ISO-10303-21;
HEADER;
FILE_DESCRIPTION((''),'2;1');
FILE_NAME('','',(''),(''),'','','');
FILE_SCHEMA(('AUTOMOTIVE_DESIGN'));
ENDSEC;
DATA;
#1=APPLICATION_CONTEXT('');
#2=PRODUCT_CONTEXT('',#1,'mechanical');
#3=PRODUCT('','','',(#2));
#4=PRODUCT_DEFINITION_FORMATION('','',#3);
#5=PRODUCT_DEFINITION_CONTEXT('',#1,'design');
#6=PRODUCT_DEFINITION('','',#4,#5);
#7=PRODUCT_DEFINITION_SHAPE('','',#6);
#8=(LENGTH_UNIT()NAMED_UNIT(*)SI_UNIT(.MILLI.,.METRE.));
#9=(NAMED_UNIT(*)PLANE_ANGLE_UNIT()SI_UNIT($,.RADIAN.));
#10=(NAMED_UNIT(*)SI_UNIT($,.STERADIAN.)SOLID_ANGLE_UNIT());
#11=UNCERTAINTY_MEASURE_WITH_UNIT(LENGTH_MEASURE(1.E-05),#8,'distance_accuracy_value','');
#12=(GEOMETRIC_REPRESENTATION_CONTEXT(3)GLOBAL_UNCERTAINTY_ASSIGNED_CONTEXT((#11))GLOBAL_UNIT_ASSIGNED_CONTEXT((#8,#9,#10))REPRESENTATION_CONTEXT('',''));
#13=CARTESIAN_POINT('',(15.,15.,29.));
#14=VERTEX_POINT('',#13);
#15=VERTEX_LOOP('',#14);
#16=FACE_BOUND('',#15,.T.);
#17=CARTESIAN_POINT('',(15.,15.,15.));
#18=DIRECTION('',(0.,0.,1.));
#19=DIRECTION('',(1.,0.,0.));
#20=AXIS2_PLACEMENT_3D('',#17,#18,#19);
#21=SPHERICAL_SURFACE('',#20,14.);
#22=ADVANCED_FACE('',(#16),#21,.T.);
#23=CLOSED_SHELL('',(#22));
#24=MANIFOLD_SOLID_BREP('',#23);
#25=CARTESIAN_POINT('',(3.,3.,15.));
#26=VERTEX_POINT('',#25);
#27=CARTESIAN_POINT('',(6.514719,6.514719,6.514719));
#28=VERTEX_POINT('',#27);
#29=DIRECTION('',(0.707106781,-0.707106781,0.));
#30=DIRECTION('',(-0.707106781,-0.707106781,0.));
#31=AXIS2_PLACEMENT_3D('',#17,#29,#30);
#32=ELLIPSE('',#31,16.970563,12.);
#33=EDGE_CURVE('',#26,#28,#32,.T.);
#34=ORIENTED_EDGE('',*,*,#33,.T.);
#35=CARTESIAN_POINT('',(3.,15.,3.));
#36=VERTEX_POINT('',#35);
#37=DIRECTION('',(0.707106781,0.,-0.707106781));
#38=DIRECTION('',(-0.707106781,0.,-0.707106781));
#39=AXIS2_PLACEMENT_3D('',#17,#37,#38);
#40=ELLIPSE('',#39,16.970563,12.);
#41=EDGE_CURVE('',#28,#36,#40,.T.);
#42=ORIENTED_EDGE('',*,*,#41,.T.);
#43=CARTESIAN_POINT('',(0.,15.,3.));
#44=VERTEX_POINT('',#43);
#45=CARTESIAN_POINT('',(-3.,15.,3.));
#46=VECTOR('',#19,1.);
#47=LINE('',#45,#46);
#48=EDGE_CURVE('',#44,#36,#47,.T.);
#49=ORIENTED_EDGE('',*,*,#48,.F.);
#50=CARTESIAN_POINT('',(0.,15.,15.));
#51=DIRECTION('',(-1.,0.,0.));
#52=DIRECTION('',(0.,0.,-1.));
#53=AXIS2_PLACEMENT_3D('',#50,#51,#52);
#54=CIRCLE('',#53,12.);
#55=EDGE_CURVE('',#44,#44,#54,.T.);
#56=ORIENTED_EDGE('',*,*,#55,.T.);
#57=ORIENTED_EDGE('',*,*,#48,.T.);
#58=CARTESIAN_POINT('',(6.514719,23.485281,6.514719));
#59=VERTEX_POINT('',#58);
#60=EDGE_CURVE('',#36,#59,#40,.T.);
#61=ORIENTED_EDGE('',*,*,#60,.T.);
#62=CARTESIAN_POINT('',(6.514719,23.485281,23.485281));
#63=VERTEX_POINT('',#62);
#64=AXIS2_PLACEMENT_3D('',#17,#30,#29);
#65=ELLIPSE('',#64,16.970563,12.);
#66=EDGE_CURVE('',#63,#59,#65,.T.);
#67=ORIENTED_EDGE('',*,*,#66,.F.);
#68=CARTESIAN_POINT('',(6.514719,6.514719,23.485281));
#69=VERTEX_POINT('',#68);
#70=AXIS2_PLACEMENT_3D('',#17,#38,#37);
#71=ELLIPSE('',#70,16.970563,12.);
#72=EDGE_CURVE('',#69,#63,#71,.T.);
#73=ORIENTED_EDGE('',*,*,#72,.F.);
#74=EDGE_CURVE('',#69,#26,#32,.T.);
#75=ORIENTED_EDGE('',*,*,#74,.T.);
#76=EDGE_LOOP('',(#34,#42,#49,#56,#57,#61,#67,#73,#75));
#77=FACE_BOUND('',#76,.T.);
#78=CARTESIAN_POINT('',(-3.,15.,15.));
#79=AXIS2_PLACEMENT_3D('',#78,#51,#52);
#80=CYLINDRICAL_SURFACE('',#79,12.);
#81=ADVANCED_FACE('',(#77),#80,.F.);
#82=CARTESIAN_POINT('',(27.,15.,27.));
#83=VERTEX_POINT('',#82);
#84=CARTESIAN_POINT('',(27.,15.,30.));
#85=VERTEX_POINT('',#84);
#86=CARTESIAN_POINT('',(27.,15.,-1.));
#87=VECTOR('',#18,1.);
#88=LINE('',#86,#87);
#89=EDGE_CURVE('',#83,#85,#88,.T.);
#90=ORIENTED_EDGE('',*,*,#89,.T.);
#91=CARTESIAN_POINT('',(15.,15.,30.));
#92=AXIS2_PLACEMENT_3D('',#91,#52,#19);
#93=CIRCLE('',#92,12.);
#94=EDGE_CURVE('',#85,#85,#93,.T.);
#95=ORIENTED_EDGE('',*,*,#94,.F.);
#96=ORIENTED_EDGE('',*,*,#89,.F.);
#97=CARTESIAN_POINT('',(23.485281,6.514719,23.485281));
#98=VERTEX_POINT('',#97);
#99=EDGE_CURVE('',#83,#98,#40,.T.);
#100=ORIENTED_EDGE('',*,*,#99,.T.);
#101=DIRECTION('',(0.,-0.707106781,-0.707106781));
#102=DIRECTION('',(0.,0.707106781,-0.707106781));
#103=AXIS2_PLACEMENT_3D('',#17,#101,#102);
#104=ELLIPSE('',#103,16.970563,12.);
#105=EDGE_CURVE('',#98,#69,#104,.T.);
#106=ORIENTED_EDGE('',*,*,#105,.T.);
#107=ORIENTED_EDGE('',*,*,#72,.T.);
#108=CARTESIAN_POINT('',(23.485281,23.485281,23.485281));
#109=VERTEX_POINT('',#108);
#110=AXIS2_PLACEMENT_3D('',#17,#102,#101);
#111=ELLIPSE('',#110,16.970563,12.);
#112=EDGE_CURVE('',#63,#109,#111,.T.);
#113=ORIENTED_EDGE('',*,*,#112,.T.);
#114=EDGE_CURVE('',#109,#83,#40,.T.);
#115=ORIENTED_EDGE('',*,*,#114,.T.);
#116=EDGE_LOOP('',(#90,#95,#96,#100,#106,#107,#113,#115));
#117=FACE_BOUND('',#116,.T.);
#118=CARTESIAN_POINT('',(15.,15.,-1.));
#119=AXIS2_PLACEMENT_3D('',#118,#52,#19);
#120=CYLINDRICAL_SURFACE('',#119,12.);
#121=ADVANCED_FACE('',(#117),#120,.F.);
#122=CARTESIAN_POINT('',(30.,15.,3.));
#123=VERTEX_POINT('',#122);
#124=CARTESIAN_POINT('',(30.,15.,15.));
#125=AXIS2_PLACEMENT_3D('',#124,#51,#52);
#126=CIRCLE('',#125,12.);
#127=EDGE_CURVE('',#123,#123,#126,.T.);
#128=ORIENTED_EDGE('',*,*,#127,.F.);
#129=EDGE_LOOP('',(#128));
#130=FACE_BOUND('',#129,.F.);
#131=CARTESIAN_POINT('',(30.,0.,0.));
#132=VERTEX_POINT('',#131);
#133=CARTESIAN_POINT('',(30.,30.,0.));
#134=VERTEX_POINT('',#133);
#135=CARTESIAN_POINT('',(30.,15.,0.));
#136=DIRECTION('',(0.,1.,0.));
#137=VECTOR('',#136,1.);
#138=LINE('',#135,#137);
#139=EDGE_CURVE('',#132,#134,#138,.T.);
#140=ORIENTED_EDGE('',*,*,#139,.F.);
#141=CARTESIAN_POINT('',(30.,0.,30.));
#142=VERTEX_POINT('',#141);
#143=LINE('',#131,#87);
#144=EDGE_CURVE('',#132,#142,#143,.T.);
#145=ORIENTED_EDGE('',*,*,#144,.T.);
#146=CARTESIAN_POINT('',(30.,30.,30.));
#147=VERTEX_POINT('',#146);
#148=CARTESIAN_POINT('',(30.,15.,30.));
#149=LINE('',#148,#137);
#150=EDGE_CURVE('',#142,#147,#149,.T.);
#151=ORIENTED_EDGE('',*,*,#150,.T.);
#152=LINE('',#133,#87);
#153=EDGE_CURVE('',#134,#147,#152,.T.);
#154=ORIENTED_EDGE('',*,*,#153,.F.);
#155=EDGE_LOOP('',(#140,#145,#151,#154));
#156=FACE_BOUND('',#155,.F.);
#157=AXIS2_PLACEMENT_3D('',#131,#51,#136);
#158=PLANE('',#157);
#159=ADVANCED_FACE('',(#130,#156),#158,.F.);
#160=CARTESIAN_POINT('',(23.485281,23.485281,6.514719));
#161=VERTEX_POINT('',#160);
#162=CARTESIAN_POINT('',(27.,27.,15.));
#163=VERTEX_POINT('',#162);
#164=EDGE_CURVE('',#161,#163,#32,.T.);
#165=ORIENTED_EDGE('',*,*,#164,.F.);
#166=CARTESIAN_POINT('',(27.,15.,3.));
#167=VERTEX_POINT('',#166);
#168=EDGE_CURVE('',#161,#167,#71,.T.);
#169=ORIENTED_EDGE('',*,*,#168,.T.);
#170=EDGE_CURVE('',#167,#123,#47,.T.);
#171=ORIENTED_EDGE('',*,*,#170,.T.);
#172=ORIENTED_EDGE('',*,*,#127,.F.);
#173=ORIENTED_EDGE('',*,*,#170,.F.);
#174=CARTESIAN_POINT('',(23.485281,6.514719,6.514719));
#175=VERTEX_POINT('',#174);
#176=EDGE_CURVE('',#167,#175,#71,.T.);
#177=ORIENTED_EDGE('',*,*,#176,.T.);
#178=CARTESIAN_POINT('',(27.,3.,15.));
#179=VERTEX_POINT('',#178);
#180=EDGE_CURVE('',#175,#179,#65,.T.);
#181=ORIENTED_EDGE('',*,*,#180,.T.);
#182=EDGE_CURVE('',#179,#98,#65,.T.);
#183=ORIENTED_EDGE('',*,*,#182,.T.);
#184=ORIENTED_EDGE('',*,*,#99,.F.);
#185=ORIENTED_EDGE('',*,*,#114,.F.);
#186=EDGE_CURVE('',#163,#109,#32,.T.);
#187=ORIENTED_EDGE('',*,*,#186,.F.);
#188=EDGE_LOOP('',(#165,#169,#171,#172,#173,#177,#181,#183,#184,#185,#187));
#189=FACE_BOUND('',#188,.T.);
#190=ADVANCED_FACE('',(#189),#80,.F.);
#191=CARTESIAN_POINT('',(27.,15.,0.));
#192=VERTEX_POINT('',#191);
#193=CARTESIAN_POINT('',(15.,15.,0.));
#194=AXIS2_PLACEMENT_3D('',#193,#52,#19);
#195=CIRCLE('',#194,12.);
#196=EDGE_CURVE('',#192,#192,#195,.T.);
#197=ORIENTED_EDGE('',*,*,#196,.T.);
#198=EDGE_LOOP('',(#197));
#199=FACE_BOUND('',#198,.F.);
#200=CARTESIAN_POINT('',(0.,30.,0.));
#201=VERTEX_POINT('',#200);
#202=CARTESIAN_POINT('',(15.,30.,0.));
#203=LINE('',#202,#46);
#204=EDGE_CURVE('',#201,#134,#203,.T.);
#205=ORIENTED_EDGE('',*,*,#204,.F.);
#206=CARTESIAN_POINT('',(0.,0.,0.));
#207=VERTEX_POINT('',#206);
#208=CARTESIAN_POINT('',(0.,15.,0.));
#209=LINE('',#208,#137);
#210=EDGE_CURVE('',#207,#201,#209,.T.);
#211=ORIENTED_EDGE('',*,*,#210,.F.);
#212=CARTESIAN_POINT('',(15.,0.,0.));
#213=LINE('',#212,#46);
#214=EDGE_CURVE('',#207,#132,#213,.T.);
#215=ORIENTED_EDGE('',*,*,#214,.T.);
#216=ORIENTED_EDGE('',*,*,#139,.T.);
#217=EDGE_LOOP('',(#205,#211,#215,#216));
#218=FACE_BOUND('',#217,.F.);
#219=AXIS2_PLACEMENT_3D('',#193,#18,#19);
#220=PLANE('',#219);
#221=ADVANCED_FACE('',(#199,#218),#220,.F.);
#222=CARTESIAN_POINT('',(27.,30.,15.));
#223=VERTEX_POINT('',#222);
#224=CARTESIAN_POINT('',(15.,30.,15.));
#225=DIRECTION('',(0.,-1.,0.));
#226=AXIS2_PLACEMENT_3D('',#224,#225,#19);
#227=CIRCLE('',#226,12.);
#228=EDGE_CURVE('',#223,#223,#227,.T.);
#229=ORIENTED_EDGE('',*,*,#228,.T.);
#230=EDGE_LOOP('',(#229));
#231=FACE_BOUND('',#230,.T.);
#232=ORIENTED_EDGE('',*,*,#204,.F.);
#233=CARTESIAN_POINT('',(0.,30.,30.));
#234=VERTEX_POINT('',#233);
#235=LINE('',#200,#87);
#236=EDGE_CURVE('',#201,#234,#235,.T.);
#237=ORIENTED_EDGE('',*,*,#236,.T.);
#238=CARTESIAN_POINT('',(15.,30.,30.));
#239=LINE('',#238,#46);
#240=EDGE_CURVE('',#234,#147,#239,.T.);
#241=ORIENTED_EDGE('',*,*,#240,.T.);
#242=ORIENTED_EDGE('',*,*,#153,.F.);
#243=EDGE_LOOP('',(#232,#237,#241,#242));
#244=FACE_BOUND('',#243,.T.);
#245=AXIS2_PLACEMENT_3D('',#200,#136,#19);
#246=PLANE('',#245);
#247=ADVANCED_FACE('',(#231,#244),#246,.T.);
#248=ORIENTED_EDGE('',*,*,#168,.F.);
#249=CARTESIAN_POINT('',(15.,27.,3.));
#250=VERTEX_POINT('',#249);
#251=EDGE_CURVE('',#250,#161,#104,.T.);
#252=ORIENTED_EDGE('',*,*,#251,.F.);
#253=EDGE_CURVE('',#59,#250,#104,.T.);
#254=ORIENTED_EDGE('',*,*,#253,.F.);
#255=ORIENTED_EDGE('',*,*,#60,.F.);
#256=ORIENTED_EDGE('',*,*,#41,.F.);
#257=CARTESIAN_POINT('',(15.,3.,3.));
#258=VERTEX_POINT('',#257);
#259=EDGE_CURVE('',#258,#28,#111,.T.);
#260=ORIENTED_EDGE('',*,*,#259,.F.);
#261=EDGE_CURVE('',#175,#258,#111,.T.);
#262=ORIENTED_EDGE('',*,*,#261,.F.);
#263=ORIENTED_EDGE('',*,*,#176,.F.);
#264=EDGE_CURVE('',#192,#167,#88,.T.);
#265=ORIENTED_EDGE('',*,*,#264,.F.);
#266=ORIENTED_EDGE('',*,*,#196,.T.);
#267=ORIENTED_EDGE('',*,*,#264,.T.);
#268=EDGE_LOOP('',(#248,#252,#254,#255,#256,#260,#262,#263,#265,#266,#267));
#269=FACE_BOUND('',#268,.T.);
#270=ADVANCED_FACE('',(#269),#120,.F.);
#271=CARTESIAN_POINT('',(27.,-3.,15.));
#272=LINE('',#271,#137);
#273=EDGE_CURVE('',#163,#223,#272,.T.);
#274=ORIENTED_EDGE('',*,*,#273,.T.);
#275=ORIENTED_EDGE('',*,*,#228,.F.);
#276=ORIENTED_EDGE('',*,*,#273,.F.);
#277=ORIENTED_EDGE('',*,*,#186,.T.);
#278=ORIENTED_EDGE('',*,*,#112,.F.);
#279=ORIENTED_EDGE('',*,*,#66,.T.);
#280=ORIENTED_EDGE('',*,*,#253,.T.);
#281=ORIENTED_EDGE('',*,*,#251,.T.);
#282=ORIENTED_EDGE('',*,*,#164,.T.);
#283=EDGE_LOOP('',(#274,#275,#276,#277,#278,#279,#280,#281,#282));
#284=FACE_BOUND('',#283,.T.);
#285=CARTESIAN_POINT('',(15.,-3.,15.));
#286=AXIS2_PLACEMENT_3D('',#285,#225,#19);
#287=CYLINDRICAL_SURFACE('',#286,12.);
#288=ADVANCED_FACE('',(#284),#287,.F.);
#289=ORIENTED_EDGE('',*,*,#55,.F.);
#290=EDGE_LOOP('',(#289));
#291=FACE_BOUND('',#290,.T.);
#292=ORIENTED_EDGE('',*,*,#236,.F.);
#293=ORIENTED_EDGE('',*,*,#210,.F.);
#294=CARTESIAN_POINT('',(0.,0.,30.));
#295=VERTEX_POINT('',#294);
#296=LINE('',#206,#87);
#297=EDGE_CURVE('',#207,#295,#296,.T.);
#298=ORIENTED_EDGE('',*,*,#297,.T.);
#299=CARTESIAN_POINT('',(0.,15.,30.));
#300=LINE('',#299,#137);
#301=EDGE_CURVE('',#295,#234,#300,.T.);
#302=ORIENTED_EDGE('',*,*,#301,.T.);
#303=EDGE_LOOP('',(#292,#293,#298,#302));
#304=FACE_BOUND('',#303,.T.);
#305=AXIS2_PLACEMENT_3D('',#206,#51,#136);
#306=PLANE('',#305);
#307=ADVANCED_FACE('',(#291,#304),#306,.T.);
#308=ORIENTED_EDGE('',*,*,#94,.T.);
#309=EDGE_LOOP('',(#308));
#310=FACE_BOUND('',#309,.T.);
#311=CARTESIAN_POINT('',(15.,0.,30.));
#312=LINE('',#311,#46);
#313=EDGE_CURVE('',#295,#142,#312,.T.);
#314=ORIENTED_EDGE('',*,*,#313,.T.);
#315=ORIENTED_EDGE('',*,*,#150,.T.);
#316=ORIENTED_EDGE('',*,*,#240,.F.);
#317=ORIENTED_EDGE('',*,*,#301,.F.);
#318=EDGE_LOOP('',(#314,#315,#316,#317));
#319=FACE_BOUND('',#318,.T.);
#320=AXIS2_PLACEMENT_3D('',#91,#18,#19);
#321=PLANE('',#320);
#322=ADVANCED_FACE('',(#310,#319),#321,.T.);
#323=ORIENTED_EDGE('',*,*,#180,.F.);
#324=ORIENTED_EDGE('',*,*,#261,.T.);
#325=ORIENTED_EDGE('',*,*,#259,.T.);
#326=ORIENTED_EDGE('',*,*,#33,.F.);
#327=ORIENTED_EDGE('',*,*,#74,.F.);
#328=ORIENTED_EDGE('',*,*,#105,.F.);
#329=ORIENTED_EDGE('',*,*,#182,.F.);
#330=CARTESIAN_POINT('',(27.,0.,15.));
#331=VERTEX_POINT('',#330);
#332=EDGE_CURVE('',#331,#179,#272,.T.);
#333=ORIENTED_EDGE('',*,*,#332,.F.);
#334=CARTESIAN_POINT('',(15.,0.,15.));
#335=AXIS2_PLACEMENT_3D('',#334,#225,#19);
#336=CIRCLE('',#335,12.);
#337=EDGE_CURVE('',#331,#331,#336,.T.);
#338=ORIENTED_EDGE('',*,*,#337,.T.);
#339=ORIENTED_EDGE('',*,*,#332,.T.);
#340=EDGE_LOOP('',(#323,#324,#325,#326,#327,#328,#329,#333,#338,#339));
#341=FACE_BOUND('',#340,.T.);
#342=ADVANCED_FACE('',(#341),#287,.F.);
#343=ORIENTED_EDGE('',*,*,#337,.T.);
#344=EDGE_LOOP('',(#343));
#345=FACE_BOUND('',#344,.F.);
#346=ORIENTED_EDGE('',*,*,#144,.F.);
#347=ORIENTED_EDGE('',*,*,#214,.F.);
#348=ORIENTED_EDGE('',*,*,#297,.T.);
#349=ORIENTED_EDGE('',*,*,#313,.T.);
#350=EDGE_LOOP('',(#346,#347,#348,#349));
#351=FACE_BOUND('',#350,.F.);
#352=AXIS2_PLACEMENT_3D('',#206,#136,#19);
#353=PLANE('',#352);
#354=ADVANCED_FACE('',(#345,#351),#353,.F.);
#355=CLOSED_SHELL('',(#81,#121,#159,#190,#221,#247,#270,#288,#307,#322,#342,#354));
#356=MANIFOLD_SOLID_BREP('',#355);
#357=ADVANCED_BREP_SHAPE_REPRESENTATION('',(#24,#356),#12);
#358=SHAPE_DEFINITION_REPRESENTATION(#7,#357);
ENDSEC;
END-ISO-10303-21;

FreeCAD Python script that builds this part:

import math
import FreeCAD as App
import Part
import Sketcher

V = App.Vector
Q = App.Units.Quantity

doc = App.newDocument("Part")
body = doc.addObject("PartDesign::Body", "Body")

# Sketch on XZ plane
sketch1 = body.newObject("Sketcher::SketchObject", "Sketch")
sketch1.AttachmentSupport = (doc.getObject("XZ_Plane"), [""])
sketch1.MapMode = "FlatFace"
sketch1.AttachmentOffset = App.Placement(V(0, 0, -15), App.Rotation())
sketch1.addGeometry([
    Part.ArcOfCircle(Part.Circle(V(15, 15, 0), V(0, 0, 1), 14), math.radians(-90), math.radians(90)),
    Part.LineSegment(V(15, 29, 0), V(15, 1, 0)),
], False)
sketch1.addGeometry(Part.LineSegment(V(15, 1, 0), V(15, 29, 0)), True)  # axis
sketch1.addConstraint([
    Sketcher.Constraint("Coincident", 0, 1, 1, 2),
    Sketcher.Constraint("Coincident", 1, 1, 0, 2),
    Sketcher.Constraint("Vertical", 1),
    Sketcher.Constraint("Vertical", 2),
    Sketcher.Constraint("Coincident", 2, 1, 0, 1),
    Sketcher.Constraint("Equal", 1, 2),
    Sketcher.Constraint("Radius", 0, Q("14 mm")),
    Sketcher.Constraint("DistanceX", -1, 1, 0, 3, Q("15 mm")),
    Sketcher.Constraint("DistanceY", -1, 1, 0, 3, Q("15 mm")),
    Sketcher.Constraint("DistanceX", -1, 1, 0, 1, Q("15 mm")),
])
revolution = body.newObject("PartDesign::Revolution", "Revolution")
revolution.Profile = sketch1
revolution.ReferenceAxis = (sketch1, ["Axis0"])
revolution.Angle = 360
body2 = doc.addObject("PartDesign::Body", "Body001")

# Sketch on YZ plane
sketch2 = body2.newObject("Sketcher::SketchObject", "Sketch001")
sketch2.AttachmentSupport = (doc.getObject("YZ_Plane001"), [""])
sketch2.MapMode = "FlatFace"
sketch2.AttachmentOffset = App.Placement(V(0, 0, -3), App.Rotation())
sketch2.addGeometry(Part.Circle(V(15, 15, 0), V(0, 0, 1), 12), False)
sketch2.addConstraint([
    Sketcher.Constraint("Diameter", 0, Q("24 mm")),
    Sketcher.Constraint("DistanceX", -1, 1, 0, 3, Q("15 mm")),
    Sketcher.Constraint("DistanceY", -1, 1, 0, 3, Q("15 mm")),
])
pad1 = body2.newObject("PartDesign::Pad", "Pad")
pad1.Profile = sketch2
pad1.Length = 35
body3 = doc.addObject("PartDesign::Body", "Body002")

# Sketch on XZ plane
sketch3 = body3.newObject("Sketcher::SketchObject", "Sketch002")
sketch3.AttachmentSupport = (doc.getObject("XZ_Plane002"), [""])
sketch3.MapMode = "FlatFace"
sketch3.AttachmentOffset = App.Placement(V(0, 0, 3), App.Rotation())
sketch3.addGeometry(Part.Circle(V(15, 15, 0), V(0, 0, 1), 12), False)
sketch3.addConstraint([
    Sketcher.Constraint("Diameter", 0, Q("24 mm")),
    Sketcher.Constraint("DistanceX", -1, 1, 0, 3, Q("15 mm")),
    Sketcher.Constraint("DistanceY", -1, 1, 0, 3, Q("15 mm")),
])
pad2 = body3.newObject("PartDesign::Pad", "Pad001")
pad2.Profile = sketch3
pad2.Length = 35
pad2.Reversed = True
body4 = doc.addObject("PartDesign::Body", "Body003")

# Sketch on XY plane
sketch4 = body4.newObject("Sketcher::SketchObject", "Sketch003")
sketch4.AttachmentSupport = (doc.getObject("XY_Plane003"), [""])
sketch4.MapMode = "FlatFace"
sketch4.AttachmentOffset = App.Placement(V(0, 0, -1), App.Rotation())
sketch4.addGeometry(Part.Circle(V(15, 15, 0), V(0, 0, 1), 12), False)
sketch4.addConstraint([
    Sketcher.Constraint("Diameter", 0, Q("24 mm")),
    Sketcher.Constraint("DistanceX", -1, 1, 0, 3, Q("15 mm")),
    Sketcher.Constraint("DistanceY", -1, 1, 0, 3, Q("15 mm")),
])
pad3 = body4.newObject("PartDesign::Pad", "Pad002")
pad3.Profile = sketch4
pad3.Length = 35
body5 = doc.addObject("PartDesign::Body", "Body004")

# Sketch on XY plane
sketch5 = body5.newObject("Sketcher::SketchObject", "Sketch004")
sketch5.AttachmentSupport = (doc.getObject("XY_Plane004"), [""])
sketch5.MapMode = "FlatFace"
sketch5.addGeometry([
    Part.LineSegment(V(0, 30, 0), V(0, 0, 0)),
    Part.LineSegment(V(0, 0, 0), V(30, 0, 0)),
    Part.LineSegment(V(30, 0, 0), V(30, 30, 0)),
    Part.LineSegment(V(30, 30, 0), V(0, 30, 0)),
], False)
sketch5.addConstraint([
    Sketcher.Constraint("Coincident", 0, 2, 1, 1),
    Sketcher.Constraint("Coincident", 1, 2, 2, 1),
    Sketcher.Constraint("Coincident", 2, 2, 3, 1),
    Sketcher.Constraint("Coincident", 3, 2, 0, 1),
    Sketcher.Constraint("Vertical", 0),
    Sketcher.Constraint("Horizontal", 1),
    Sketcher.Constraint("Vertical", 2),
    Sketcher.Constraint("Horizontal", 3),
    Sketcher.Constraint("Coincident", 0, 2, -1, 1),
    Sketcher.Constraint("Equal", 3, 0),
    Sketcher.Constraint("DistanceX", 1, 1, 1, 2, Q("30 mm")),
])
pad4 = body5.newObject("PartDesign::Pad", "Pad003")
pad4.Profile = sketch5
pad4.Length = 30
doc.recompute()

boolean = body5.newObject("PartDesign::Boolean", "Boolean")
boolean.Type = "Cut"
boolean.addObjects([body4])
doc.recompute()

boolean2 = body5.newObject("PartDesign::Boolean", "Boolean001")
boolean2.Type = "Cut"
boolean2.addObjects([body3])
doc.recompute()

boolean3 = body5.newObject("PartDesign::Boolean", "Boolean002")
boolean3.Type = "Cut"
boolean3.addObjects([body2])

doc.recompute()
